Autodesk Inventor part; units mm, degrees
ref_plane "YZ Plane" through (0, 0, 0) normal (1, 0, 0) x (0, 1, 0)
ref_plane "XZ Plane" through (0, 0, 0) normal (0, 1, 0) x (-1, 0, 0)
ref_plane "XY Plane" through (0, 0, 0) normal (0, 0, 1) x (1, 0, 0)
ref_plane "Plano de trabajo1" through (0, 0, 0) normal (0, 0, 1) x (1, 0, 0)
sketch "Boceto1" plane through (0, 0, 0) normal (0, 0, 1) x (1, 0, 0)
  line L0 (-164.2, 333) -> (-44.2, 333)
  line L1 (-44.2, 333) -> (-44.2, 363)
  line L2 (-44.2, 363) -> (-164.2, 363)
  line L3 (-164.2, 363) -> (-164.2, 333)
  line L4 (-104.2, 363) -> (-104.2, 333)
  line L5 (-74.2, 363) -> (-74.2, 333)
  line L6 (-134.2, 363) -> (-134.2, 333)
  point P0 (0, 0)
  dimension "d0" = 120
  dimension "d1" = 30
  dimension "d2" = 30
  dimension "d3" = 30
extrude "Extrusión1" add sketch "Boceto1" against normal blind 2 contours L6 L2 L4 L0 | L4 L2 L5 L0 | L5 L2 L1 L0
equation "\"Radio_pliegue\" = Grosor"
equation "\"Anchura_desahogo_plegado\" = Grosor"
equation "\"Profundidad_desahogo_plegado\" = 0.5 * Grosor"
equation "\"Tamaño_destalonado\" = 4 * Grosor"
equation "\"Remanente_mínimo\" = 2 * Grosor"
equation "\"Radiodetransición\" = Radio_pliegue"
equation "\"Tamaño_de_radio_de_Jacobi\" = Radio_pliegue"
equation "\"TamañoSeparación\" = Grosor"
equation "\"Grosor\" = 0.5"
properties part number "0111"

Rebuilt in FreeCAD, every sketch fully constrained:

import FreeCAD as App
import Part
import Sketcher
from FreeCAD import Vector
Q = App.Units.Quantity


def add_polygon(sketch, points):
    """Adds a closed chain of lines whose ends are joined by coincident constraints."""
    first, n = sketch.GeometryCount, len(points)
    for a, b in zip(points, points[1:] + points[:1]):
        sketch.addGeometry(Part.LineSegment(App.Vector(*a, 0), App.Vector(*b, 0)), False)
    for i in range(n):
        sketch.addConstraint(Sketcher.Constraint("Coincident", first + i, 2, first + (i + 1) % n, 1))

doc = App.newDocument("Part")
params = doc.addObject("Spreadsheet::Sheet", "Params")
for row, (alias, value) in enumerate([
    ("sketch1_height", "30 mm"),
    ("sketch1_width", "90 mm"),
    ("pad1_length", "2 mm"),
], start=1):
    params.set(f"A{row}", alias)
    params.set(f"B{row}", "=" + value)
    params.setAlias(f"B{row}", alias)

body = doc.addObject("PartDesign::Body", "Body")

sketch1 = body.newObject("Sketcher::SketchObject", "Sketch")
sketch1.AttachmentSupport = (doc.getObject("XY_Plane"), [""])
sketch1.MapMode = "FlatFace"
add_polygon(sketch1, [(-134, 363), (-134, 333), (-44, 333), (-44, 363)])
sketch1.addConstraint([
    Sketcher.Constraint("Vertical", 0),
    Sketcher.Constraint("Horizontal", 1),
    Sketcher.Constraint("Vertical", 2),
    Sketcher.Constraint("Horizontal", 3),
    Sketcher.Constraint("DistanceY", 0, 2, 0, 1, Q("30 mm")),
    Sketcher.Constraint("DistanceX", 1, 1, 1, 2, Q("90 mm")),
    Sketcher.Constraint("DistanceY", -1, 1, 0, 2, Q("333 mm")),
    Sketcher.Constraint("DistanceX", 0, 2, -1, 1, Q("134.2 mm")),
])
sketch1.setExpression("Constraints[8]", "Params.sketch1_height")
sketch1.setExpression("Constraints[9]", "Params.sketch1_width")
pad1 = body.newObject("PartDesign::Pad", "Pad")
pad1.Profile = sketch1
pad1.setExpression("Length", "Params.pad1_length")
pad1.Reversed = True

doc.recompute()
